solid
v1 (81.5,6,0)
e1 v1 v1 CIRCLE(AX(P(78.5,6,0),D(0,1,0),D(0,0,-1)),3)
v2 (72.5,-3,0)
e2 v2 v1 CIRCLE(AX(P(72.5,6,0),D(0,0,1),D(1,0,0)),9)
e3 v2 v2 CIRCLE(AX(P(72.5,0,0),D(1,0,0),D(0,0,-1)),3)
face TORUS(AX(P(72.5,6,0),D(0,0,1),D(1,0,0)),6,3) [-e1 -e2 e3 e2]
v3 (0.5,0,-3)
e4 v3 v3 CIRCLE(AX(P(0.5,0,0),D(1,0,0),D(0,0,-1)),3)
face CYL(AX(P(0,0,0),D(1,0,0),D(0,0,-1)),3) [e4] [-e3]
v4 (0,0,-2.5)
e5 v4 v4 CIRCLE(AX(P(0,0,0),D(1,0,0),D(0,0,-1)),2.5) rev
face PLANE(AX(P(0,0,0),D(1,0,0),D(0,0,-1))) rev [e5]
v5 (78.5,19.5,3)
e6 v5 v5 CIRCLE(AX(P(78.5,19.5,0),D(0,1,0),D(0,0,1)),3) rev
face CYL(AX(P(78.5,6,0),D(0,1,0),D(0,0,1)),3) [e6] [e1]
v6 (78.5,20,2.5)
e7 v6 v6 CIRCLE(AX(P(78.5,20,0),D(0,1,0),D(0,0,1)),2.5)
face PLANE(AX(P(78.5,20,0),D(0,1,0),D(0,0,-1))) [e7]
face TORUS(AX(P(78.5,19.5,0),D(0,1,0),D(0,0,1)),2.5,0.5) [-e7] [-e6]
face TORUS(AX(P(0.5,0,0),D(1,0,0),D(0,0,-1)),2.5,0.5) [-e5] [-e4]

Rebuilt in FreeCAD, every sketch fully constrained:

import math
import FreeCAD as App
import Part
import Sketcher

V = App.Vector


def edges_at(feature, points):
    """Names of the edges that pass closest to the given points."""
    edges = feature.Shape.Edges
    near = lambda p: min(range(len(edges)), key=lambda i: edges[i].distToShape(Part.Vertex(*p))[0])
    return sorted({f"Edge{near(p) + 1}" for p in points})

doc = App.newDocument("Part")
body = doc.addObject("PartDesign::Body", "Body")

sketch1 = body.newObject("Sketcher::SketchObject", "Sketch")
sketch1.AttachmentSupport = (doc.getObject("YZ_Plane"), [""])
sketch1.MapMode = "FlatFace"
sketch1.addGeometry(Part.Circle(V(0, 0, 0), V(0, 0, 1), 3), False)
sketch1.addConstraint(Sketcher.Constraint("Coincident", 0, 3, -1, 1))
sketch1.addConstraint(Sketcher.Constraint("Diameter", 0, 6.0))

sketch2 = body.newObject("Sketcher::SketchObject", "Sketch001")
sketch2.AttachmentSupport = (doc.getObject("XY_Plane"), [""])
sketch2.MapMode = "FlatFace"
sketch2.addGeometry(Part.LineSegment(V(0, 0, 0), V(72.5, 0, 0)), False)
sketch2.addGeometry(Part.ArcOfCircle(Part.Circle(V(72.5, 6, 0), V(0, 0, 1), 6), math.radians(-90), math.radians(0)), False)
sketch2.addGeometry(Part.LineSegment(V(78.5, 6, 0), V(78.5, 20, 0)), False)
sketch2.addConstraint(Sketcher.Constraint("Tangent", 0, 2, 1, 1))
sketch2.addConstraint(Sketcher.Constraint("Tangent", 1, 2, 2, 1))
sketch2.addConstraint(Sketcher.Constraint("Horizontal", 0))
sketch2.addConstraint(Sketcher.Constraint("Vertical", 2))
sketch2.addConstraint(Sketcher.Constraint("Coincident", 0, 1, -1, 1))
sketch2.addConstraint(Sketcher.Constraint("Radius", 1, 6.0))
sketch2.addConstraint(Sketcher.Constraint("DistanceY", 2, 1, 2, 2, 14.0))
sketch2.addConstraint(Sketcher.Constraint("DistanceX", 0, 1, 0, 2, 72.5))
doc.recompute()

additivepipe = body.newObject("PartDesign::AdditivePipe", "AdditivePipe")
additivepipe.Profile = sketch1
additivepipe.Spine = (sketch2, ["Edge1", "Edge2", "Edge3"])
doc.recompute()

fillet = body.newObject("PartDesign::Fillet", "Fillet")
fillet.Base = (additivepipe, edges_at(additivepipe, [(78.5, 20, 3), (0, 0, 3)]))
fillet.Radius = 0.5

doc.recompute()
